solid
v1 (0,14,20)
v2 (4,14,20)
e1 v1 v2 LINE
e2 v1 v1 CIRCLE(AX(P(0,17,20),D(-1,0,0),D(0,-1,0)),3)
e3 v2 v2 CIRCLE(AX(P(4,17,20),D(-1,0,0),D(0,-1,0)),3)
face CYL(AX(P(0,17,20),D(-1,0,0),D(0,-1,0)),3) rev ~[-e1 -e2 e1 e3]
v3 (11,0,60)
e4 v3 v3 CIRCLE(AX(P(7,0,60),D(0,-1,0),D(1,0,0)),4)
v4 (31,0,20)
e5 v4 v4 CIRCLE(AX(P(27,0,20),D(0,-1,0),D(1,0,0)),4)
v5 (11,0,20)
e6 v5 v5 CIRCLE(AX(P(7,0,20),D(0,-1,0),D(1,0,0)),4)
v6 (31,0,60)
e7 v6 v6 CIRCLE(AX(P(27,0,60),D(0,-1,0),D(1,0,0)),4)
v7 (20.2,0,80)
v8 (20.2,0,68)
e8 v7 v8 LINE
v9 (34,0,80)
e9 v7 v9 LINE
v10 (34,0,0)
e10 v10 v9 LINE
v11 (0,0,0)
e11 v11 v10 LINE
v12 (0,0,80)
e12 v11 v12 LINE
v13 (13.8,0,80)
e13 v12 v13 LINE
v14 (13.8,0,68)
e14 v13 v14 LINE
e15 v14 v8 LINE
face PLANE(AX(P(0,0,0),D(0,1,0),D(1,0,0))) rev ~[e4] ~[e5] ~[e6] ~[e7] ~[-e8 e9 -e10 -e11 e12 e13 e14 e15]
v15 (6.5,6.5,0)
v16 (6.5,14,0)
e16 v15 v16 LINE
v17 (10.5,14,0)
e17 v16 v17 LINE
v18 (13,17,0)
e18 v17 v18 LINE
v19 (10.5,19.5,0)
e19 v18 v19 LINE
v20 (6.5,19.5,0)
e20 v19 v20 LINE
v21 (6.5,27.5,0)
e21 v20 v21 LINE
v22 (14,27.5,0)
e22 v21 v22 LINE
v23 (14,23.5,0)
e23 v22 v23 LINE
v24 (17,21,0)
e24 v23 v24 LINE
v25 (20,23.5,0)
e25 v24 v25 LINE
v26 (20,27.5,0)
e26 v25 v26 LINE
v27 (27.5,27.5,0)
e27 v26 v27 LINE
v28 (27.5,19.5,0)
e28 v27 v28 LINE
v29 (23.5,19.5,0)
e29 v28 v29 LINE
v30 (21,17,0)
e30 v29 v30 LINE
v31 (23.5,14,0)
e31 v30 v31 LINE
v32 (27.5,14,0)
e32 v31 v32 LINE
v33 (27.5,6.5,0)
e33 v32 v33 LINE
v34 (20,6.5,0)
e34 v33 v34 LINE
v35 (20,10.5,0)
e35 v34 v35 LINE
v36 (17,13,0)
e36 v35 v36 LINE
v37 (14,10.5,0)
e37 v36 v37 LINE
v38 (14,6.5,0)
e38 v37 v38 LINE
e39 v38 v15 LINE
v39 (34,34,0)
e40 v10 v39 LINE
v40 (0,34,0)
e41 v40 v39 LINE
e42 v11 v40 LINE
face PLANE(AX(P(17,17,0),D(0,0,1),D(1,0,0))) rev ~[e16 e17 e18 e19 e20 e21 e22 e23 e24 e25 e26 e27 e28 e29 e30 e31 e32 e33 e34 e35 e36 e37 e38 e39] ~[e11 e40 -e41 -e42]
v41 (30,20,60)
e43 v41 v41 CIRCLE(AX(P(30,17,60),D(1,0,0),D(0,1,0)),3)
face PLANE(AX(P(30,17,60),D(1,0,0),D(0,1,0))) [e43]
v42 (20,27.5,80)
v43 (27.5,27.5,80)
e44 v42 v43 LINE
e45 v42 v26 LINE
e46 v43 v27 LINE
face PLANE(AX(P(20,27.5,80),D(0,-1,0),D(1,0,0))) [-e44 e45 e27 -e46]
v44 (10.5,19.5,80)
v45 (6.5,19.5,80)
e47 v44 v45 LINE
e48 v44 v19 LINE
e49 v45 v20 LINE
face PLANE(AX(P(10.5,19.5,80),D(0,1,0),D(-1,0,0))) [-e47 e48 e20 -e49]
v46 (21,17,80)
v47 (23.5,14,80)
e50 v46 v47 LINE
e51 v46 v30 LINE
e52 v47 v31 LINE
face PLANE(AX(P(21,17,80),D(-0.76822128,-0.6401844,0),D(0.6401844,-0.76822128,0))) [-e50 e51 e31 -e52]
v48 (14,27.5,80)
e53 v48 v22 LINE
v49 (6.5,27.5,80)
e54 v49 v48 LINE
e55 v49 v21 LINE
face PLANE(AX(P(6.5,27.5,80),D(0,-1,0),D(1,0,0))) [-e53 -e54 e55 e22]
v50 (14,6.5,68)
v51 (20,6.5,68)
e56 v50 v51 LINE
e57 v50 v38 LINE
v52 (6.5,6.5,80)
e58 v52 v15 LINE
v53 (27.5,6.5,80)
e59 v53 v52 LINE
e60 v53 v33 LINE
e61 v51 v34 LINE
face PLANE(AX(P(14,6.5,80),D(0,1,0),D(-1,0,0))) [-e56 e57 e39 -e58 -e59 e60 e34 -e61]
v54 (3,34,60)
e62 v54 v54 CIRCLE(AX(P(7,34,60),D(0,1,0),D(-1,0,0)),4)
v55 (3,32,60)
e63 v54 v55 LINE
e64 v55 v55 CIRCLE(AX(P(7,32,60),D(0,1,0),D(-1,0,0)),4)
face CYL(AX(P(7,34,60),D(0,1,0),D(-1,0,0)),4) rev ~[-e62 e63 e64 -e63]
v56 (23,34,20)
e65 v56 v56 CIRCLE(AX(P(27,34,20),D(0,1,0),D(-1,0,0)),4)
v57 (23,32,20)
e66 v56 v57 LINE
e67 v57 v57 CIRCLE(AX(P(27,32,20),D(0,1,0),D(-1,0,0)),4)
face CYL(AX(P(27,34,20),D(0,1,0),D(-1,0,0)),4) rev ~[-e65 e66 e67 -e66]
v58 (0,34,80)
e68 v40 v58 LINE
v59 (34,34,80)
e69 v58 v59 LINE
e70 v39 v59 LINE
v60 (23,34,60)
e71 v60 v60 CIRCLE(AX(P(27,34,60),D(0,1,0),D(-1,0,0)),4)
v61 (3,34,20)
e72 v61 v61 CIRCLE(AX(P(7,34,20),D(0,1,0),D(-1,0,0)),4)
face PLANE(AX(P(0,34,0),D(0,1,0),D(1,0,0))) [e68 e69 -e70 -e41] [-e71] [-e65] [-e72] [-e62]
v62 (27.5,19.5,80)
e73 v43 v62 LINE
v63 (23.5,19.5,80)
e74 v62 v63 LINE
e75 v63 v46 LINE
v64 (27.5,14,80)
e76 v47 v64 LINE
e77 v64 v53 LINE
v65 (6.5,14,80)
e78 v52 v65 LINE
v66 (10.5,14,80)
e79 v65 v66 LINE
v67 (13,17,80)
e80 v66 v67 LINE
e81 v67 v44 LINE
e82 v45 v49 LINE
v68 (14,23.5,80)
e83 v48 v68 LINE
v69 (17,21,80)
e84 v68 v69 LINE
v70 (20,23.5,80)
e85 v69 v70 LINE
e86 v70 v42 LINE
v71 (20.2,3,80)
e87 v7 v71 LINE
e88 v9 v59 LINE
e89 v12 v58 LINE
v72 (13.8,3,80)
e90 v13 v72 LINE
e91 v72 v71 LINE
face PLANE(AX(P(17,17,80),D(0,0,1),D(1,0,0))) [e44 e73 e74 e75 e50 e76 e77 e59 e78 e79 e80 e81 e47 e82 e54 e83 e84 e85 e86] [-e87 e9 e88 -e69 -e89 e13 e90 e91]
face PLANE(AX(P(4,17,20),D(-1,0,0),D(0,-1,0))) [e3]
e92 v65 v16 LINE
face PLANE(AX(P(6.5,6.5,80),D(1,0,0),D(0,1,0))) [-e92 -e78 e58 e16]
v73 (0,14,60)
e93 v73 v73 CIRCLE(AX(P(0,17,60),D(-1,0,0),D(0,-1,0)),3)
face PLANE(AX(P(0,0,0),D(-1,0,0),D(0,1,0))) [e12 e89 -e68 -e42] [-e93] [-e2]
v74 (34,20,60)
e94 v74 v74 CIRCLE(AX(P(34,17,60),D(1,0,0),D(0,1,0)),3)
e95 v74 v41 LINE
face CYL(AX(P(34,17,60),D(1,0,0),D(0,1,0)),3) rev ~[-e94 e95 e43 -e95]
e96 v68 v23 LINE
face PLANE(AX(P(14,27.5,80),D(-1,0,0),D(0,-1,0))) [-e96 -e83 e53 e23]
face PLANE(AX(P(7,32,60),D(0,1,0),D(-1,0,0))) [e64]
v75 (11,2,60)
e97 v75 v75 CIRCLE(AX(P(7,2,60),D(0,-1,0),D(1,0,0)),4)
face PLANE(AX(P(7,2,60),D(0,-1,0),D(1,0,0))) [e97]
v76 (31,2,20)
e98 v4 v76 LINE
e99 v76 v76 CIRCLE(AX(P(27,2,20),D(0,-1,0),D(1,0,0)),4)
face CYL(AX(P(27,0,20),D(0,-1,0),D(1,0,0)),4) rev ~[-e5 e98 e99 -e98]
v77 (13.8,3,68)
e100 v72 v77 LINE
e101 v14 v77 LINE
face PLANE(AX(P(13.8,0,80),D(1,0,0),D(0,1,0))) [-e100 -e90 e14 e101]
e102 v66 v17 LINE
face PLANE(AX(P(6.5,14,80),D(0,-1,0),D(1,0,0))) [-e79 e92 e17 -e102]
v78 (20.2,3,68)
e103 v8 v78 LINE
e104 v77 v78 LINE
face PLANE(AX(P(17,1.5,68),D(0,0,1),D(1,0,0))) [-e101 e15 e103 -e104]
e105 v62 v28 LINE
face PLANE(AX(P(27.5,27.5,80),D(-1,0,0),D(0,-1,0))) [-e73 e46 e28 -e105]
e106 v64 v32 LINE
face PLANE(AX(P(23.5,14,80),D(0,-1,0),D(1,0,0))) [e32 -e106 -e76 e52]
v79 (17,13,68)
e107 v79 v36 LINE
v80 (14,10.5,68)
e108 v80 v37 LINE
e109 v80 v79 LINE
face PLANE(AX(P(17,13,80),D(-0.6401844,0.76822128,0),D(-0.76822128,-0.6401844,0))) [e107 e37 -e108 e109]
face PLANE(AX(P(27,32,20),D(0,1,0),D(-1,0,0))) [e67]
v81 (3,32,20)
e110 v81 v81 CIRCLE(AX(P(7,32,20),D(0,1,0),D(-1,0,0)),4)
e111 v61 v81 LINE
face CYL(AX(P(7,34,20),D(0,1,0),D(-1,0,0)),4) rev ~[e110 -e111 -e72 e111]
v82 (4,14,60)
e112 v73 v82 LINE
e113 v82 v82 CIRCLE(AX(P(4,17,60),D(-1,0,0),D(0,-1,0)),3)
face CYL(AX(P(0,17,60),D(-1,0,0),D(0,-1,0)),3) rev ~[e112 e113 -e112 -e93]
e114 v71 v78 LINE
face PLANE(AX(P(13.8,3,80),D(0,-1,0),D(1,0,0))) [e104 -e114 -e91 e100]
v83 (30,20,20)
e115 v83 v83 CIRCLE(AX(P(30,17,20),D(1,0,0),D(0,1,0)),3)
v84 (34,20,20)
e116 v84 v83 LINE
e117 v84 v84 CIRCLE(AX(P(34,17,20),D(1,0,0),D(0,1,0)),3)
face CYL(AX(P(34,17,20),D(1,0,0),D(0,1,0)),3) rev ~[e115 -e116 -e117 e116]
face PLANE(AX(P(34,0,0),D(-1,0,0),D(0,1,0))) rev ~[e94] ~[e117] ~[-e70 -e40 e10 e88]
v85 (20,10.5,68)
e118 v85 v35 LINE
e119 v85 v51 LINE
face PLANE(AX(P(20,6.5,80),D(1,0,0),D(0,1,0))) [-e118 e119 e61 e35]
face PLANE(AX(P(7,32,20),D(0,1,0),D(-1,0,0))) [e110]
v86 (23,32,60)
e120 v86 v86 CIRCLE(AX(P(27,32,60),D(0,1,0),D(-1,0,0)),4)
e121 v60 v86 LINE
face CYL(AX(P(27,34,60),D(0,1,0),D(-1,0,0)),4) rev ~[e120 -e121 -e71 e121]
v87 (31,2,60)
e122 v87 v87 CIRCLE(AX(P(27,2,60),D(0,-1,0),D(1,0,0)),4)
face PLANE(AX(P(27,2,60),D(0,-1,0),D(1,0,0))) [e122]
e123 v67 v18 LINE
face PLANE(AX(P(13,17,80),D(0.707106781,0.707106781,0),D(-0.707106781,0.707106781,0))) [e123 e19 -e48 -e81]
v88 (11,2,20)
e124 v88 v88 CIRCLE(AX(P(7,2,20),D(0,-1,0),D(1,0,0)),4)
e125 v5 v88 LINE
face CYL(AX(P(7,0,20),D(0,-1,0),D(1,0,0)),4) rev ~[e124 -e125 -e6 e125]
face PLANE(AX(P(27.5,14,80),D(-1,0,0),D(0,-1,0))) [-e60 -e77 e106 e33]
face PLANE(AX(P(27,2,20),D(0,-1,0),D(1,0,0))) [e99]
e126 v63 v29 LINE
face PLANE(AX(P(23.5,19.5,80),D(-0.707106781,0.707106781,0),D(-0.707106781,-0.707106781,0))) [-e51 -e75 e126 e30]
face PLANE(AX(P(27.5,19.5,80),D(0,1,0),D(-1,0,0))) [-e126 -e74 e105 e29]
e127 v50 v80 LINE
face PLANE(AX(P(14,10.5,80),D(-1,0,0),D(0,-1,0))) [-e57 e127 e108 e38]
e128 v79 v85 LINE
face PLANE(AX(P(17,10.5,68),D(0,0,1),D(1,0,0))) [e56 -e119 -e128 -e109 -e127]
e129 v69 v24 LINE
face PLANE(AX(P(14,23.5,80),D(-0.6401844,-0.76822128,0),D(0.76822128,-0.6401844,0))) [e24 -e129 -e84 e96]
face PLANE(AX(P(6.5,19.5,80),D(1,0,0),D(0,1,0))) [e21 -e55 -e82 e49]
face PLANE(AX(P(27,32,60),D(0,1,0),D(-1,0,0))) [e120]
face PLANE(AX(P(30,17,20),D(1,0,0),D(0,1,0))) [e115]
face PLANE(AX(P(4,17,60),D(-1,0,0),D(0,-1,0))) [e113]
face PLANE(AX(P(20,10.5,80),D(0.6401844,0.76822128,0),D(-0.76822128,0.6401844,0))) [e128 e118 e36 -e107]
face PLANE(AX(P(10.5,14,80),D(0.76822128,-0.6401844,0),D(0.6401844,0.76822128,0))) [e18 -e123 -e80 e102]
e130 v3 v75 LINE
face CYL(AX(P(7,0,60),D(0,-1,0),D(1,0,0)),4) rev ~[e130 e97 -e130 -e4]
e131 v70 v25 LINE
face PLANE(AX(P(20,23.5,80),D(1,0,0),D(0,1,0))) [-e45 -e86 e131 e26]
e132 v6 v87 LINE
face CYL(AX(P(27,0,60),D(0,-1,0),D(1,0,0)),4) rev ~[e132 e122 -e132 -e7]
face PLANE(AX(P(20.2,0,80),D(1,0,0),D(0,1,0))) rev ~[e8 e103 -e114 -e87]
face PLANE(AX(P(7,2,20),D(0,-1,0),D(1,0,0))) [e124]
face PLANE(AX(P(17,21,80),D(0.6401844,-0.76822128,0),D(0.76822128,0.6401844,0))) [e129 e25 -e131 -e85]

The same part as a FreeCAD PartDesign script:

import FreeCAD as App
import Part
import Sketcher
Q = App.Units.Quantity


def add_polygon(sketch, points):
    """Adds a closed chain of lines whose ends are joined by coincident constraints."""
    first, n = sketch.GeometryCount, len(points)
    for a, b in zip(points, points[1:] + points[:1]):
        sketch.addGeometry(Part.LineSegment(App.Vector(*a, 0), App.Vector(*b, 0)), False)
    for i in range(n):
        sketch.addConstraint(Sketcher.Constraint("Coincident", first + i, 2, first + (i + 1) % n, 1))

doc = App.newDocument("Part")
body = doc.addObject("PartDesign::Body", "Body")

sketch1 = body.newObject("Sketcher::SketchObject", "Sketch")
sketch1.AttachmentSupport = (doc.getObject("XY_Plane"), [""])
sketch1.MapMode = "FlatFace"
add_polygon(sketch1, [(0, 34), (0, 0), (34, 0), (34, 34)])
sketch1.addConstraint([
    Sketcher.Constraint("Vertical", 0),
    Sketcher.Constraint("Horizontal", 1),
    Sketcher.Constraint("Vertical", 2),
    Sketcher.Constraint("Horizontal", 3),
    Sketcher.Constraint("Coincident", 0, 2, -1, 1),
    Sketcher.Constraint("Equal", 3, 0),
    Sketcher.Constraint("DistanceX", 1, 1, 1, 2, Q("34 mm")),
])
pad1 = body.newObject("PartDesign::Pad", "Pad")
pad1.Profile = sketch1
pad1.Length = 80

sketch2 = body.newObject("Sketcher::SketchObject", "Sketch001")
sketch2.AttachmentSupport = (doc.getObject("XY_Plane"), [""])
sketch2.MapMode = "FlatFace"
sketch2.AttachmentOffset = App.Placement(App.Vector(0, 0, 80), App.Rotation())
add_polygon(sketch2, [(14, 27.5), (6.5, 27.5), (6.5, 19.5), (10.5, 19.5), (13, 17), (10.5, 14), (6.5, 14), (6.5, 6.5), (14, 6.5), (14, 10.5), (17, 13), (20, 10.5), (20, 6.5), (27.5, 6.5), (27.5, 14), (23.5, 14), (21, 17), (23.5, 19.5), (27.5, 19.5), (27.5, 27.5), (20, 27.5), (20, 23.5), (17, 21), (14, 23.5)])
sketch2.addConstraint([
    Sketcher.Constraint("Horizontal", 0),
    Sketcher.Constraint("Vertical", 1),
    Sketcher.Constraint("Horizontal", 2),
    Sketcher.Constraint("Horizontal", 5),
    Sketcher.Constraint("Vertical", 6),
    Sketcher.Constraint("Horizontal", 7),
    Sketcher.Constraint("Vertical", 8),
    Sketcher.Constraint("Vertical", 11),
    Sketcher.Constraint("Horizontal", 12),
    Sketcher.Constraint("Vertical", 13),
    Sketcher.Constraint("Horizontal", 14),
    Sketcher.Constraint("Horizontal", 17),
    Sketcher.Constraint("Vertical", 18),
    Sketcher.Constraint("Horizontal", 19),
    Sketcher.Constraint("Vertical", 20),
    Sketcher.Constraint("Vertical", 23),
    Sketcher.Constraint("Perpendicular", 4, 10),
    Sketcher.Constraint("Perpendicular", 9, 15),
    Sketcher.Constraint("Perpendicular", 3, 16),
    Sketcher.Constraint("Perpendicular", 15, 21),
    Sketcher.Constraint("Parallel", 10, 22),
    Sketcher.Constraint("Horizontal", 8, 2, 10, 2),
    Sketcher.Constraint("Horizontal", 7, 2, 11, 2),
    Sketcher.Constraint("Horizontal", 5, 2, 13, 2),
    Sketcher.Constraint("Horizontal", 3, 2, 15, 2),
    Sketcher.Constraint("Horizontal", 2, 2, 16, 2),
    Sketcher.Constraint("Horizontal", 0, 2, 18, 2),
    Sketcher.Constraint("Horizontal", 20, 2, 22, 2),
    Sketcher.Constraint("Vertical", 2, 2, 4, 2),
    Sketcher.Constraint("Vertical", 1, 2, 5, 2),
    Sketcher.Constraint("Vertical", 14, 2, 16, 2),
    Sketcher.Constraint("Vertical", 13, 2, 17, 2),
    Sketcher.Constraint("Vertical", 11, 2, 19, 2),
    Sketcher.Constraint("Vertical", 9, 2, 21, 2),
    Sketcher.Constraint("Vertical", 8, 2, 22, 2),
    Sketcher.Constraint("Equal", 7, 12),
    Sketcher.Constraint("Equal", 5, 14),
    Sketcher.Constraint("Equal", 19, 6),
    Sketcher.Constraint("Equal", 17, 8),
    Sketcher.Constraint("Equal", 11, 20),
    Sketcher.Constraint("Equal", 4, 9),
    Sketcher.Constraint("DistanceX", 2, 1, 2, 2, Q("4 mm")),
    Sketcher.Constraint("DistanceY", 1, 2, 1, 1, Q("8 mm")),
    Sketcher.Constraint("DistanceX", 0, 2, 0, 1, Q("7.5 mm")),
    Sketcher.Constraint("DistanceX", -1, 1, 3, 2, Q("13 mm")),
    Sketcher.Constraint("DistanceY", -1, 1, 3, 2, Q("17 mm")),
    Sketcher.Constraint("DistanceY", -1, 1, 4, 2, Q("14 mm")),
    Sketcher.Constraint("DistanceX", -1, 1, 7, 2, Q("14 mm")),
])
pocket1 = body.newObject("PartDesign::Pocket", "Pocket")
pocket1.Profile = sketch2
pocket1.Length = 80

sketch3 = body.newObject("Sketcher::SketchObject", "Sketch002")
sketch3.AttachmentSupport = (doc.getObject("YZ_Plane"), [""])
sketch3.MapMode = "FlatFace"
sketch3.addGeometry([
    Part.Circle(App.Vector(17, 60, 0), App.Vector(0, 0, 1), 3),
    Part.Circle(App.Vector(17, 20, 0), App.Vector(0, 0, 1), 3),
], False)
sketch3.addConstraint([
    Sketcher.Constraint("Equal", 0, 1),
    Sketcher.Constraint("Vertical", 0, 3, 1, 3),
    Sketcher.Constraint("Diameter", 0, Q("6 mm")),
    Sketcher.Constraint("DistanceX", -1, 1, 0, 3, Q("17 mm")),
    Sketcher.Constraint("DistanceY", -1, 1, 0, 3, Q("60 mm")),
    Sketcher.Constraint("DistanceY", -1, 1, 1, 3, Q("20 mm")),
])
pocket2 = body.newObject("PartDesign::Pocket", "Pocket001")
pocket2.Profile = sketch3
pocket2.Length = 4
pocket2.Reversed = True

sketch4 = body.newObject("Sketcher::SketchObject", "Sketch003")
sketch4.AttachmentSupport = (doc.getObject("YZ_Plane"), [""])
sketch4.MapMode = "FlatFace"
sketch4.AttachmentOffset = App.Placement(App.Vector(0, 0, 34), App.Rotation())
sketch4.addGeometry([
    Part.Circle(App.Vector(17, 60, 0), App.Vector(0, 0, 1), 3),
    Part.Circle(App.Vector(17, 20, 0), App.Vector(0, 0, 1), 3),
], False)
sketch4.addConstraint([
    Sketcher.Constraint("Equal", 0, 1),
    Sketcher.Constraint("Vertical", 0, 3, 1, 3),
    Sketcher.Constraint("Diameter", 0, Q("6 mm")),
    Sketcher.Constraint("DistanceX", -1, 1, 0, 3, Q("17 mm")),
    Sketcher.Constraint("DistanceY", -1, 1, 0, 3, Q("60 mm")),
    Sketcher.Constraint("DistanceY", -1, 1, 1, 3, Q("20 mm")),
])
pocket3 = body.newObject("PartDesign::Pocket", "Pocket002")
pocket3.Profile = sketch4
pocket3.Length = 4

sketch5 = body.newObject("Sketcher::SketchObject", "Sketch004")
sketch5.AttachmentSupport = (doc.getObject("XZ_Plane"), [""])
sketch5.MapMode = "FlatFace"
sketch5.AttachmentOffset = App.Placement(App.Vector(0, 0, -34), App.Rotation())
sketch5.addGeometry([
    Part.Circle(App.Vector(27, 60, 0), App.Vector(0, 0, 1), 4),
    Part.Circle(App.Vector(7, 60, 0), App.Vector(0, 0, 1), 4),
    Part.Circle(App.Vector(27, 20, 0), App.Vector(0, 0, 1), 4),
    Part.Circle(App.Vector(7, 20, 0), App.Vector(0, 0, 1), 4),
], False)
sketch5.addConstraint([
    Sketcher.Constraint("Equal", 0, 1),
    Sketcher.Constraint("Equal", 1, 2),
    Sketcher.Constraint("Equal", 2, 3),
    Sketcher.Constraint("Horizontal", 0, 3, 1, 3),
    Sketcher.Constraint("Horizontal", 2, 3, 3, 3),
    Sketcher.Constraint("Vertical", 0, 3, 2, 3),
    Sketcher.Constraint("Vertical", 1, 3, 3, 3),
    Sketcher.Constraint("Diameter", 0, Q("8 mm")),
    Sketcher.Constraint("DistanceX", -1, 1, 0, 3, Q("27 mm")),
    Sketcher.Constraint("DistanceY", -1, 1, 0, 3, Q("60 mm")),
    Sketcher.Constraint("DistanceX", -1, 1, 1, 3, Q("7 mm")),
    Sketcher.Constraint("DistanceY", -1, 1, 2, 3, Q("20 mm")),
])
pocket4 = body.newObject("PartDesign::Pocket", "Pocket003")
pocket4.Profile = sketch5
pocket4.Length = 2
pocket4.Reversed = True

sketch6 = body.newObject("Sketcher::SketchObject", "Sketch005")
sketch6.AttachmentSupport = (doc.getObject("XZ_Plane"), [""])
sketch6.MapMode = "FlatFace"
sketch6.addGeometry([
    Part.Circle(App.Vector(7, 60, 0), App.Vector(0, 0, 1), 4),
    Part.Circle(App.Vector(27, 60, 0), App.Vector(0, 0, 1), 4),
    Part.Circle(App.Vector(7, 20, 0), App.Vector(0, 0, 1), 4),
    Part.Circle(App.Vector(27, 20, 0), App.Vector(0, 0, 1), 4),
], False)
sketch6.addConstraint([
    Sketcher.Constraint("Equal", 0, 1),
    Sketcher.Constraint("Equal", 1, 2),
    Sketcher.Constraint("Equal", 2, 3),
    Sketcher.Constraint("Horizontal", 0, 3, 1, 3),
    Sketcher.Constraint("Horizontal", 2, 3, 3, 3),
    Sketcher.Constraint("Vertical", 0, 3, 2, 3),
    Sketcher.Constraint("Vertical", 1, 3, 3, 3),
    Sketcher.Constraint("Diameter", 0, Q("8 mm")),
    Sketcher.Constraint("DistanceX", -1, 1, 0, 3, Q("7 mm")),
    Sketcher.Constraint("DistanceY", -1, 1, 0, 3, Q("60 mm")),
    Sketcher.Constraint("DistanceX", -1, 1, 1, 3, Q("27 mm")),
    Sketcher.Constraint("DistanceY", -1, 1, 2, 3, Q("20 mm")),
])
pocket5 = body.newObject("PartDesign::Pocket", "Pocket004")
pocket5.Profile = sketch6
pocket5.Length = 2

sketch7 = body.newObject("Sketcher::SketchObject", "Sketch006")
sketch7.AttachmentSupport = (doc.getObject("XY_Plane"), [""])
sketch7.MapMode = "FlatFace"
sketch7.AttachmentOffset = App.Placement(App.Vector(0, 0, 80), App.Rotation())
add_polygon(sketch7, [(13.8, 3), (13.8, 0), (20.2, 0), (20.2, 3)])
add_polygon(sketch7, [(13, 14.5), (13, 6.5), (21, 6.5), (21, 14.5)])
sketch7.addConstraint([
    Sketcher.Constraint("Vertical", 0),
    Sketcher.Constraint("Horizontal", 1),
    Sketcher.Constraint("Vertical", 2),
    Sketcher.Constraint("Horizontal", 3),
    Sketcher.Constraint("Vertical", 4),
    Sketcher.Constraint("Horizontal", 5),
    Sketcher.Constraint("Vertical", 6),
    Sketcher.Constraint("Horizontal", 7),
    Sketcher.Constraint("PointOnObject", 0, 2, -1),
    Sketcher.Constraint("Equal", 7, 4),
    Sketcher.Constraint("DistanceX", 5, 1, 5, 2, Q("8 mm")),
    Sketcher.Constraint("DistanceY", 0, 2, 0, 1, Q("3 mm")),
    Sketcher.Constraint("DistanceX", 1, 1, 1, 2, Q("6.4 mm")),
    Sketcher.Constraint("DistanceX", -1, 1, 4, 2, Q("13 mm")),
    Sketcher.Constraint("DistanceX", -1, 1, 0, 2, Q("13.8 mm")),
    Sketcher.Constraint("DistanceY", -1, 1, 4, 2, Q("6.5 mm")),
])
pocket6 = body.newObject("PartDesign::Pocket", "Pocket005")
pocket6.Profile = sketch7
pocket6.Length = 12

doc.recompute()
